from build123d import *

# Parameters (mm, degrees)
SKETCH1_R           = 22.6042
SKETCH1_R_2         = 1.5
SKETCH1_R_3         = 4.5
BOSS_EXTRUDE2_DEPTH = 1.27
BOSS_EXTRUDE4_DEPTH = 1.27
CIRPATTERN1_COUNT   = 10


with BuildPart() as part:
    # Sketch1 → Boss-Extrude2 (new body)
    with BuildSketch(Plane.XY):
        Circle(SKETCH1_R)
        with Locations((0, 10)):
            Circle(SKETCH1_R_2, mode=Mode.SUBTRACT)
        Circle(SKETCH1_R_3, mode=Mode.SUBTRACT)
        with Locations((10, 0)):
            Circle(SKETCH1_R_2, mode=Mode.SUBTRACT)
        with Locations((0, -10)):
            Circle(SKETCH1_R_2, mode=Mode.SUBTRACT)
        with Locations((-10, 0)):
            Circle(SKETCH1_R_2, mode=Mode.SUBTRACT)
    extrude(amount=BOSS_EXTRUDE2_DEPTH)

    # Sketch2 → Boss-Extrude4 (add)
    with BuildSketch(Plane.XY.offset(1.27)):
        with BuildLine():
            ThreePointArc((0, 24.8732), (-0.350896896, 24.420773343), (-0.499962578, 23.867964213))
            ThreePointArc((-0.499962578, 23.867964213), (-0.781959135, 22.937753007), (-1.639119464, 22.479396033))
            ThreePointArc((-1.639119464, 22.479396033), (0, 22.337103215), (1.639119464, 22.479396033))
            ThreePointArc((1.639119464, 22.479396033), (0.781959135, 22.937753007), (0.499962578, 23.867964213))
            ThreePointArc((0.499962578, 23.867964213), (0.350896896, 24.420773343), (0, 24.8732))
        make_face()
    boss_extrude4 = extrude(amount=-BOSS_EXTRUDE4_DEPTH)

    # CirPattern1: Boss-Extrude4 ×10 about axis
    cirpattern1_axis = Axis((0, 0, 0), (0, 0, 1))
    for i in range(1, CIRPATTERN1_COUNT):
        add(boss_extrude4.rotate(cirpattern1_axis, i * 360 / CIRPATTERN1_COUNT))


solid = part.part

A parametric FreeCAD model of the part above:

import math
import FreeCAD as App
import Part
import Sketcher

doc = App.newDocument("Part")
body = doc.addObject("PartDesign::Body", "Body")

# Sketch on XY plane
sketch1 = body.newObject("Sketcher::SketchObject", "Sketch")
sketch1.AttachmentSupport = (doc.getObject("XY_Plane"), [""])
sketch1.MapMode = "FlatFace"
sketch1.addGeometry([
    Part.Circle(App.Vector(0, 0, 0), App.Vector(0, 0, 1), 22.6),  # 0
    Part.Circle(App.Vector(0, -10, 0), App.Vector(0, 0, 1), 1.5),  # 1
    Part.Circle(App.Vector(-10, 0, 0), App.Vector(0, 0, 1), 1.5),  # 2
    Part.Circle(App.Vector(0, 0, 0), App.Vector(0, 0, 1), 4.5),  # 3
    Part.Circle(App.Vector(10, 0, 0), App.Vector(0, 0, 1), 1.5),  # 4
    Part.Circle(App.Vector(0, 10, 0), App.Vector(0, 0, 1), 1.5),  # 5
], False)
sketch1.addConstraint([
    Sketcher.Constraint("Coincident", 0, 3, -1, 1),
    Sketcher.Constraint("Coincident", 3, 3, -1, 1),
    Sketcher.Constraint("Equal", 1, 2),
    Sketcher.Constraint("Equal", 2, 4),
    Sketcher.Constraint("Equal", 4, 5),
    Sketcher.Constraint("Symmetric", 2, 3, 4, 3, -1, 1),
    Sketcher.Constraint("Symmetric", 1, 3, 5, 3, -1, 1),
    Sketcher.Constraint("PointOnObject", 1, 3, -2),
    Sketcher.Constraint("PointOnObject", 2, 3, -1),
    Sketcher.Constraint("Diameter", 1, 3.0),
    Sketcher.Constraint("Diameter", 3, 9.0),
    Sketcher.Constraint("DistanceY", 1, 3, -1, 1, 10.0),
    Sketcher.Constraint("DistanceX", 2, 3, -1, 1, 10.0),
    Sketcher.Constraint("Diameter", 0, 45.2084),
])
pad1 = body.newObject("PartDesign::Pad", "Pad")
pad1.Profile = sketch1
pad1.Length = 1.27

# Sketch on XY plane
sketch2 = body.newObject("Sketcher::SketchObject", "Sketch001")
sketch2.AttachmentSupport = (doc.getObject("XY_Plane"), [""])
sketch2.MapMode = "FlatFace"
sketch2.AttachmentOffset = App.Placement(App.Vector(0, 0, 1.27), App.Rotation())
sketch2.addGeometry([
    Part.ArcOfCircle(Part.Circle(App.Vector(1, 23.8, 0), App.Vector(0, 0, 1), 1.5), math.radians(131), math.radians(176)),  # 0
    Part.ArcOfCircle(Part.Circle(App.Vector(-1.8, 23.7, 0), App.Vector(0, 0, 1), 1.3), math.radians(-84), math.radians(6)),  # 1
    Part.ArcOfCircle(Part.Circle(App.Vector(0, 31.8, 0), App.Vector(0, 0, 1), 9.5), math.radians(-99.92), math.radians(-80.08)),  # 2
    Part.ArcOfCircle(Part.Circle(App.Vector(1.8, 23.7, 0), App.Vector(0, 0, 1), 1.3), math.radians(174), math.radians(264)),  # 3
    Part.ArcOfCircle(Part.Circle(App.Vector(-1, 23.8, 0), App.Vector(0, 0, 1), 1.5), math.radians(4), math.radians(49)),  # 4
], False)
sketch2.addConstraint([
    Sketcher.Constraint("Coincident", 0, 2, 1, 2),
    Sketcher.Constraint("Coincident", 1, 1, 2, 1),
    Sketcher.Constraint("Coincident", 2, 2, 3, 2),
    Sketcher.Constraint("Coincident", 3, 1, 4, 1),
    Sketcher.Constraint("Coincident", 4, 2, 0, 1),
    Sketcher.Constraint("Equal", 1, 3),
    Sketcher.Constraint("Equal", 0, 4),
    Sketcher.Constraint("Symmetric", 1, 3, 3, 3, -2),
    Sketcher.Constraint("Symmetric", 0, 3, 4, 3, -2),
    Sketcher.Constraint("PointOnObject", 2, 3, -2),
    Sketcher.Constraint("Radius", 1, 1.27),
    Sketcher.Constraint("Radius", 0, 1.454281),
    Sketcher.Constraint("Radius", 2, 9.511934),
    Sketcher.Constraint("DistanceY", -1, 1, 4, 2, 24.8732),
    Sketcher.Constraint("DistanceX", 0, 3, 3, 3, 0.812601),
    Sketcher.Constraint("DistanceY", -1, 1, 1, 3, 23.743259),
    Sketcher.Constraint("DistanceX", 1, 1, -1, 1, 1.639119),
    Sketcher.Constraint("DistanceX", 1, 3, 0, 3, 2.715049),
])
pad2 = body.newObject("PartDesign::Pad", "Pad001")
pad2.Profile = sketch2
pad2.Length = 1.27
pad2.Reversed = True
doc.recompute()

polarpattern = body.newObject("PartDesign::PolarPattern", "PolarPattern")
polarpattern.Originals = [pad2]
polarpattern.Axis = (doc.getObject("Z_Axis"), [""])
polarpattern.Angle = 360
polarpattern.Occurrences = 10
body.Tip = polarpattern

doc.recompute()
